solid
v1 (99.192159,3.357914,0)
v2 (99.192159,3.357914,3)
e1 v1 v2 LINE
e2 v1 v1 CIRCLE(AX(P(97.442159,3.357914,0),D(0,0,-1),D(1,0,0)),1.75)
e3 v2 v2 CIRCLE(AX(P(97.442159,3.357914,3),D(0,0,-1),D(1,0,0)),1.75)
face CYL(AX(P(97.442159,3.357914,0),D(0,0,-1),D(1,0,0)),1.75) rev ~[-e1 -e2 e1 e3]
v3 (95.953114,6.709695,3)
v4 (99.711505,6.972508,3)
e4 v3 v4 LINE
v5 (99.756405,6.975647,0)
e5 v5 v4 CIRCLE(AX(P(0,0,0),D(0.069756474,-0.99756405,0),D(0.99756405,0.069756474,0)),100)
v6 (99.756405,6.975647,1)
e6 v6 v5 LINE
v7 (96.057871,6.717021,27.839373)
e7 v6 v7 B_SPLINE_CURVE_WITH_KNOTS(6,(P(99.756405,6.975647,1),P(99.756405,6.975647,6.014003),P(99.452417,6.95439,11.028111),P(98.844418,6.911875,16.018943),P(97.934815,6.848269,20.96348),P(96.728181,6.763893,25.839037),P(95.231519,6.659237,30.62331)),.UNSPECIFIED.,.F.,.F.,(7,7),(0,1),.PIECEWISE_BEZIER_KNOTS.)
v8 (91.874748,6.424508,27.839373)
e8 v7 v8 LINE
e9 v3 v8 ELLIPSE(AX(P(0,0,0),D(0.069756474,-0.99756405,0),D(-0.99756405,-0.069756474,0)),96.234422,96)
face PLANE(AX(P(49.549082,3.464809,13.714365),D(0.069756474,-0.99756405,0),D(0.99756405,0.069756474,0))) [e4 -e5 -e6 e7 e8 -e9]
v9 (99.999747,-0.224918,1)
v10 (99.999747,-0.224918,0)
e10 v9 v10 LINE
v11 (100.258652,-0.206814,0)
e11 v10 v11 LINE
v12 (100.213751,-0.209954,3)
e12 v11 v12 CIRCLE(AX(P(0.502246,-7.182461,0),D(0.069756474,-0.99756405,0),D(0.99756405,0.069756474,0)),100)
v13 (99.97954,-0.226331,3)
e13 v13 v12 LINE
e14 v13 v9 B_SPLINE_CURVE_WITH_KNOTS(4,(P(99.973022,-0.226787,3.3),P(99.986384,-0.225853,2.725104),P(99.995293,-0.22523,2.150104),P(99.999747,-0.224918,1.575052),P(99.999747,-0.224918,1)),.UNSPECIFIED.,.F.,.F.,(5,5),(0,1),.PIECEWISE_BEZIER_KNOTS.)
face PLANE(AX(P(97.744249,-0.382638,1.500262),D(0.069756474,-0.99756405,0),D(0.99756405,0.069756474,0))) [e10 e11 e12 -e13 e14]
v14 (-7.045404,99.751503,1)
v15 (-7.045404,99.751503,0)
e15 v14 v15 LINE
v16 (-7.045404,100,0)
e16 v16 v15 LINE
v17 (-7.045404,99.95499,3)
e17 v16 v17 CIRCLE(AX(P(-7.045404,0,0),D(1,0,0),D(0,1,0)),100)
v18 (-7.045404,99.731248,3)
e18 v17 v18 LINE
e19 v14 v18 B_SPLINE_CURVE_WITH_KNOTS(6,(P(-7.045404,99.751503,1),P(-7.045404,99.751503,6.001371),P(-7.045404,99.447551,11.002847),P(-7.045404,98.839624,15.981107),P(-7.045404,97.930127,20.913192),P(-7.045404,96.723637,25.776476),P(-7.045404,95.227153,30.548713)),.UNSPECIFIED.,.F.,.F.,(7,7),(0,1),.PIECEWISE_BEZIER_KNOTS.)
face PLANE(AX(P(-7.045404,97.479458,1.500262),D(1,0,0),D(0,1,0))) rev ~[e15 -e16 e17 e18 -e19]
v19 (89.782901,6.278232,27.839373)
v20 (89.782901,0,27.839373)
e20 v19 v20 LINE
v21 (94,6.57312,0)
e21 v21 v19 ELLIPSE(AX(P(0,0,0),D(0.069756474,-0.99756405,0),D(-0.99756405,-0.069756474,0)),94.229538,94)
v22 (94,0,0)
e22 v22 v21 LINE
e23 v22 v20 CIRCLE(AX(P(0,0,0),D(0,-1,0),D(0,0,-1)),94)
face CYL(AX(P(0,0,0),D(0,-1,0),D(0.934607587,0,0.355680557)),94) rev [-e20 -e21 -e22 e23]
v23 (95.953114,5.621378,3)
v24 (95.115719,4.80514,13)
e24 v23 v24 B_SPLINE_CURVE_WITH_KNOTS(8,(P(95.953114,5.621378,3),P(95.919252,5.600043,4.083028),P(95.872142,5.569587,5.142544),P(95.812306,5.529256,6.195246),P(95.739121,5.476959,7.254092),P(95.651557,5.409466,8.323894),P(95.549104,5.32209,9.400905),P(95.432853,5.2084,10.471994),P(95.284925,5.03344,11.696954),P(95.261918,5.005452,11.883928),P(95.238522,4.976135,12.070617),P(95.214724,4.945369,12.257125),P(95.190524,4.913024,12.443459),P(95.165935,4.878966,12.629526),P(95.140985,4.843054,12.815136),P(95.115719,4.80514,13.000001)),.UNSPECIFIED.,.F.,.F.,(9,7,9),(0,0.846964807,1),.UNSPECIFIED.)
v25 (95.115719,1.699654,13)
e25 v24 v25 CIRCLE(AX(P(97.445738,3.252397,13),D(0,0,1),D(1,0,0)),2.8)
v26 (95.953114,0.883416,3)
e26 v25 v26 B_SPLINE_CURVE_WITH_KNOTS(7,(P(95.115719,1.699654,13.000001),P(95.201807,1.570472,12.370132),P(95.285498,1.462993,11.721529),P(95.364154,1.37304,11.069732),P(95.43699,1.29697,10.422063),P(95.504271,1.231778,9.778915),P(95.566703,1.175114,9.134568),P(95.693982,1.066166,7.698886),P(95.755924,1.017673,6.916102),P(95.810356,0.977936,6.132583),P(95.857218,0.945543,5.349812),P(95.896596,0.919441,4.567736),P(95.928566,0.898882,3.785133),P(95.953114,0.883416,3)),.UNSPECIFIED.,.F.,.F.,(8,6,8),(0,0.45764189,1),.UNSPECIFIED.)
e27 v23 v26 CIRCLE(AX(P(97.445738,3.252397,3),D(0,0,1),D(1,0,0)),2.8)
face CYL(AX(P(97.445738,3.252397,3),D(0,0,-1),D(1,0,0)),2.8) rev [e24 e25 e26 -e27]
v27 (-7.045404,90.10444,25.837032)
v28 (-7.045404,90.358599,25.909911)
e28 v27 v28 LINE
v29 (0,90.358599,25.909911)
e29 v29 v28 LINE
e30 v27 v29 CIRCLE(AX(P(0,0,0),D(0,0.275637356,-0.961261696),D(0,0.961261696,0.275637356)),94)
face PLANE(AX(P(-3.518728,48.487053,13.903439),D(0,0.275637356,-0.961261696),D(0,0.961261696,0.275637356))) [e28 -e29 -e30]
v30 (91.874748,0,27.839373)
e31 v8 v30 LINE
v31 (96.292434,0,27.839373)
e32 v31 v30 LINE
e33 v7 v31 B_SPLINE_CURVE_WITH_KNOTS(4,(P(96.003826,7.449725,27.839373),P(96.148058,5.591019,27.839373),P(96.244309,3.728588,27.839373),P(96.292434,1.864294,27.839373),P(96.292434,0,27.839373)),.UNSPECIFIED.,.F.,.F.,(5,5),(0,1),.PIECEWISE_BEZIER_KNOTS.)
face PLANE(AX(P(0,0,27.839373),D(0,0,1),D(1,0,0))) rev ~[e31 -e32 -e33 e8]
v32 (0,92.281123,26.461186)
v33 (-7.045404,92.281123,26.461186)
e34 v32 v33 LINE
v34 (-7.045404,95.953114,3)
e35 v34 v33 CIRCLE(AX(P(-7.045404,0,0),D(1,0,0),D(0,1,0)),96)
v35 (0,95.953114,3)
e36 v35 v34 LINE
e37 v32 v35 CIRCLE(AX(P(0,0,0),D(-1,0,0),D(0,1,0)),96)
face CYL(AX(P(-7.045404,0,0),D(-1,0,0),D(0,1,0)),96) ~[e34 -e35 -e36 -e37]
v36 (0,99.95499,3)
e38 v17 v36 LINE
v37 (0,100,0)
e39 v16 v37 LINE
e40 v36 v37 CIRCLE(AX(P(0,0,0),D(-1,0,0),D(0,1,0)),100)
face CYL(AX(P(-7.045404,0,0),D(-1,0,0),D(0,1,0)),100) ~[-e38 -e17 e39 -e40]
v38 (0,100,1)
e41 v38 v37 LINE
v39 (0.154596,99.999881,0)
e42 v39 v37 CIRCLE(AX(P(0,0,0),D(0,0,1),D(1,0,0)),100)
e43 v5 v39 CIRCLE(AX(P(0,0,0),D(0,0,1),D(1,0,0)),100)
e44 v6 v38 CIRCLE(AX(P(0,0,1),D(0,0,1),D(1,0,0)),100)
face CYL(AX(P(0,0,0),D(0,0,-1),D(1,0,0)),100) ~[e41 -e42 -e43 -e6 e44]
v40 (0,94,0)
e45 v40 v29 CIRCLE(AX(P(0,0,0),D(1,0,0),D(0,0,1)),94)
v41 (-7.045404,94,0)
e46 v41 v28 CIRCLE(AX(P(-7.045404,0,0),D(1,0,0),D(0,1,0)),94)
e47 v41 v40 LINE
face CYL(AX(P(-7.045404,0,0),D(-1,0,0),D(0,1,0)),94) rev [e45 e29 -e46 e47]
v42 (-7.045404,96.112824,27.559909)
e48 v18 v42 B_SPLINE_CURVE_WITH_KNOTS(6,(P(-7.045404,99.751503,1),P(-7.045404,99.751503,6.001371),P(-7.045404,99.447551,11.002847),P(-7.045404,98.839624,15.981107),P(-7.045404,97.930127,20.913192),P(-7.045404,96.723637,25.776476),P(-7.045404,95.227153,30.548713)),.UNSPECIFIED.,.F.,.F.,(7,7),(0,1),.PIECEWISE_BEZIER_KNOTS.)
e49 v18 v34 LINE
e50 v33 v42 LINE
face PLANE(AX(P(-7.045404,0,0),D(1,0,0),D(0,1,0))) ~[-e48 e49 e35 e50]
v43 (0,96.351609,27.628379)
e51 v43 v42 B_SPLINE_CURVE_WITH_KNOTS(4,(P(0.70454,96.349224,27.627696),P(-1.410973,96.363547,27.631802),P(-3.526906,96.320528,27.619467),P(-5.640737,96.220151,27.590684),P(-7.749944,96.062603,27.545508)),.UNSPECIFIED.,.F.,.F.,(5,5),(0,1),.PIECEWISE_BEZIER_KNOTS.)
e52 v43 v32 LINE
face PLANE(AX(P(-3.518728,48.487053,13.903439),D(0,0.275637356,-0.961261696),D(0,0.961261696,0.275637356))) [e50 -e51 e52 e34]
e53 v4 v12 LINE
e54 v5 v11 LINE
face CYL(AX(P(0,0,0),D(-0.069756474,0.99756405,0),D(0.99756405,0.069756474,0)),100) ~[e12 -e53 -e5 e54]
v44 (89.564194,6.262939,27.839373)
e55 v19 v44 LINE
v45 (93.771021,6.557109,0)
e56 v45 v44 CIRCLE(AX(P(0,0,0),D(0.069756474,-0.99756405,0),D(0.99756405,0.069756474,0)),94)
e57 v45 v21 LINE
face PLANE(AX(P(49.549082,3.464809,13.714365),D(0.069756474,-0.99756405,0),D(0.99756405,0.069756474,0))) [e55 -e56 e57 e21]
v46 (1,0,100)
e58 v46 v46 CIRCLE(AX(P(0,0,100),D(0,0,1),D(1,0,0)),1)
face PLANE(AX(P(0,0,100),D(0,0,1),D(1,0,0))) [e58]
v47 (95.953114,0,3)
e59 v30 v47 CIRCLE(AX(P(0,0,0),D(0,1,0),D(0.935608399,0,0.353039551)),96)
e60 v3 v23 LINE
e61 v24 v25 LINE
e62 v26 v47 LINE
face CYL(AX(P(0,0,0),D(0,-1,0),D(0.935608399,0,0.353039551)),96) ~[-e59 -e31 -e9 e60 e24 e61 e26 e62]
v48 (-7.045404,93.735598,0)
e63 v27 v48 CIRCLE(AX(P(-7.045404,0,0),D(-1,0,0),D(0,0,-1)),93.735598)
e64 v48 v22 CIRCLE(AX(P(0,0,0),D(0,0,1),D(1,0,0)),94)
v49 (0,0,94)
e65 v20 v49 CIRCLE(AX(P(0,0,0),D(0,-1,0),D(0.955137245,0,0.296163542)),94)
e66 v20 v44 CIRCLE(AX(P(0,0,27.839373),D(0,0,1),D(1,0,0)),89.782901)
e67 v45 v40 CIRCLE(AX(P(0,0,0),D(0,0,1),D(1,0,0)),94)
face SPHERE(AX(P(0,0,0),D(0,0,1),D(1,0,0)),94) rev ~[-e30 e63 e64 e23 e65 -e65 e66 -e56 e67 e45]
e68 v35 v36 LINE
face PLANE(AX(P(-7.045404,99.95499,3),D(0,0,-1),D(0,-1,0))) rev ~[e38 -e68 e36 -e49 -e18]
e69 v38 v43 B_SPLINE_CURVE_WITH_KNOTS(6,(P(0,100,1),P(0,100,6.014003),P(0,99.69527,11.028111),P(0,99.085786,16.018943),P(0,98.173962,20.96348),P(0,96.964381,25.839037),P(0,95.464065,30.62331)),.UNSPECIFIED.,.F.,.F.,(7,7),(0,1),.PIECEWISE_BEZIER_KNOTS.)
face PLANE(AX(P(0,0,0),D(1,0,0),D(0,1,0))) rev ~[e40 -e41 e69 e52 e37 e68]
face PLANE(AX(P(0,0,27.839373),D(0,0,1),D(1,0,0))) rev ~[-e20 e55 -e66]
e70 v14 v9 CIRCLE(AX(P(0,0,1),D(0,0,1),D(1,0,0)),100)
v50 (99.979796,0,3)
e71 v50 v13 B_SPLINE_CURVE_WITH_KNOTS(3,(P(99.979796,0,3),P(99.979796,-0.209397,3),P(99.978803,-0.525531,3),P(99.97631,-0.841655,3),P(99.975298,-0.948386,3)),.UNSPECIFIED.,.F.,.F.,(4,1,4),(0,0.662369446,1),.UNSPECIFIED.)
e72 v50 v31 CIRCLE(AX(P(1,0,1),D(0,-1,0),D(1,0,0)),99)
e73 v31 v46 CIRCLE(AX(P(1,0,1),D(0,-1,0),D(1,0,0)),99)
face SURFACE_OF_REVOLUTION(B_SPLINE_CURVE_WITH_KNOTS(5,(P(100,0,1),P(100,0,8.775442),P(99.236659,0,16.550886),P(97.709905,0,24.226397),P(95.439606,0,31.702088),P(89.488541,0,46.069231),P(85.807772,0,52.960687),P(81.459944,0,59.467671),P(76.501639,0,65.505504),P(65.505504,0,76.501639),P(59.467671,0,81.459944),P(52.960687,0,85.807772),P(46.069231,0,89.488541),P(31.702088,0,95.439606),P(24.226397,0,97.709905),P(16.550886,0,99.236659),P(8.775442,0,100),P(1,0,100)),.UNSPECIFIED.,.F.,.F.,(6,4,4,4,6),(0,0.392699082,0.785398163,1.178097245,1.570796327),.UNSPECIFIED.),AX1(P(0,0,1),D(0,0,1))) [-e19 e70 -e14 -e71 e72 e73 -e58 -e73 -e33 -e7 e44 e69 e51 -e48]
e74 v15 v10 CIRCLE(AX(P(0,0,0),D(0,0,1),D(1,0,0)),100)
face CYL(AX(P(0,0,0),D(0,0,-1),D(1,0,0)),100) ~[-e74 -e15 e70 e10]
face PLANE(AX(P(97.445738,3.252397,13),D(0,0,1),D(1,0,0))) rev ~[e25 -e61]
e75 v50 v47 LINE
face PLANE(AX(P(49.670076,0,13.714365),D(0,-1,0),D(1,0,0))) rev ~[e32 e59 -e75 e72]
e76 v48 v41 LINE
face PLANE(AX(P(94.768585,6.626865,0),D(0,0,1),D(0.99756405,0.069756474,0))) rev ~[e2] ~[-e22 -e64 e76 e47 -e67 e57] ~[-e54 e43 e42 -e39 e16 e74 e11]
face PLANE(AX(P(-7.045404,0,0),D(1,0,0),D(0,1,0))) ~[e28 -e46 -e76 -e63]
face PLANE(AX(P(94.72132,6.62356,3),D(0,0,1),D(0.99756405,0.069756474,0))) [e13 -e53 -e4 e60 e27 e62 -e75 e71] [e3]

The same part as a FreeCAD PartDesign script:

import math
import FreeCAD as App
import Part
import Sketcher

V = App.Vector


def edges_at(feature, points):
    """Names of the edges that pass closest to the given points."""
    edges = feature.Shape.Edges
    near = lambda p: min(range(len(edges)), key=lambda i: edges[i].distToShape(Part.Vertex(*p))[0])
    return sorted({f"Edge{near(p) + 1}" for p in points})

doc = App.newDocument("Part")
body = doc.addObject("PartDesign::Body", "Body")

# Sketch on XY plane
sketch1 = doc.addObject("Sketcher::SketchObject", "Sketch")
body.addObject(sketch1)
sketch1.AttachmentSupport = (doc.XY_Plane, [""])
sketch1.MapMode = "FlatFace"
sketch1.addGeometry(Part.Circle(V(0, 0, 0), V(0, 0, 1), 100), False)
sketch1.addConstraint(Sketcher.Constraint("Coincident", 0, 3, -1, 1))
sketch1.addConstraint(Sketcher.Constraint("Diameter", 0, 200.0))
pad1 = doc.addObject("PartDesign::Pad", "Pad")
body.addObject(pad1)
pad1.Profile = sketch1
pad1.Length = 100
doc.recompute()

fillet = doc.addObject("PartDesign::Fillet", "Fillet")
body.addObject(fillet)
fillet.Base = (pad1, edges_at(pad1, [(-100, 0, 100)]))
fillet.Radius = 99

# Sketch on XZ plane
sketch2 = doc.addObject("Sketcher::SketchObject", "Sketch001")
body.addObject(sketch2)
sketch2.AttachmentSupport = (doc.XZ_Plane, [""])
sketch2.MapMode = "FlatFace"
sketch2.addGeometry(Part.ArcOfCircle(Part.Circle(V(0, 0, 0), V(0, 0, 1), 101), math.radians(0), math.radians(16)), False)
sketch2.addGeometry(Part.LineSegment(V(97.087431, 27.839373, 0), V(0, 27.839373, 0)), False)
sketch2.addGeometry(Part.LineSegment(V(0, 27.839373, 0), V(0, 0, 0)), False)
sketch2.addGeometry(Part.LineSegment(V(0, 0, 0), V(101, 0, 0)), False)
sketch2.addConstraint(Sketcher.Constraint("Coincident", 0, 2, 1, 1))
sketch2.addConstraint(Sketcher.Constraint("Coincident", 1, 2, 2, 1))
sketch2.addConstraint(Sketcher.Constraint("Coincident", 2, 2, 3, 1))
sketch2.addConstraint(Sketcher.Constraint("Coincident", 3, 2, 0, 1))
sketch2.addConstraint(Sketcher.Constraint("Horizontal", 1))
sketch2.addConstraint(Sketcher.Constraint("Vertical", 2))
sketch2.addConstraint(Sketcher.Constraint("Horizontal", 3))
sketch2.addConstraint(Sketcher.Constraint("Coincident", 0, 3, -1, 1))
sketch2.addConstraint(Sketcher.Constraint("Coincident", 2, 2, -1, 1))
sketch2.addConstraint(Sketcher.Constraint("Radius", 0, 101.0))
sketch2.addConstraint(Sketcher.Constraint("DistanceX", 1, 2, 1, 1, 97.087431))
groove = doc.addObject("PartDesign::Groove", "Groove")
body.addObject(groove)
groove.Profile = sketch2
groove.ReferenceAxis = (sketch2, ["V_Axis"])
groove.Angle = 4

# Sketch on XY plane
sketch3 = doc.addObject("Sketcher::SketchObject", "Sketch002")
body.addObject(sketch3)
sketch3.AttachmentSupport = (doc.XY_Plane, [""])
sketch3.MapMode = "FlatFace"
sketch3.addGeometry(Part.ArcOfCircle(Part.Circle(V(0, 0, 0), V(0, 0, 1), 101), math.radians(90), math.radians(94)), False)
sketch3.addGeometry(Part.LineSegment(V(0, 101, 0), V(0, 0, 0)), False)
sketch3.addGeometry(Part.LineSegment(V(0, 0, 0), V(-7.045404, 0, 0)), False)
sketch3.addGeometry(Part.LineSegment(V(-7.045404, 0, 0), V(-7.045404, 100.753969, 0)), False)
sketch3.addConstraint(Sketcher.Constraint("Coincident", 0, 1, 1, 1))
sketch3.addConstraint(Sketcher.Constraint("Coincident", 1, 2, 2, 1))
sketch3.addConstraint(Sketcher.Constraint("Coincident", 2, 2, 3, 1))
sketch3.addConstraint(Sketcher.Constraint("Coincident", 3, 2, 0, 2))
sketch3.addConstraint(Sketcher.Constraint("Vertical", 1))
sketch3.addConstraint(Sketcher.Constraint("Horizontal", 2))
sketch3.addConstraint(Sketcher.Constraint("Vertical", 3))
sketch3.addConstraint(Sketcher.Constraint("Coincident", 0, 3, -1, 1))
sketch3.addConstraint(Sketcher.Constraint("Coincident", 1, 2, -1, 1))
sketch3.addConstraint(Sketcher.Constraint("Radius", 0, 101.0))
sketch3.addConstraint(Sketcher.Constraint("DistanceY", 3, 1, 3, 2, 100.753969))
groove2 = doc.addObject("PartDesign::Groove", "Groove001")
body.addObject(groove2)
groove2.Profile = sketch3
groove2.ReferenceAxis = (sketch3, ["H_Axis"])
groove2.Angle = 16

# Sketch on XZ plane
sketch4 = doc.addObject("Sketcher::SketchObject", "Sketch003")
body.addObject(sketch4)
sketch4.AttachmentSupport = (doc.XZ_Plane, [""])
sketch4.MapMode = "FlatFace"
sketch4.addGeometry(Part.ArcOfCircle(Part.Circle(V(0, 0, 0), V(0, 0, 1), 94), math.radians(-90), math.radians(90)), False)
sketch4.addGeometry(Part.LineSegment(V(0, 94, 0), V(0, -94, 0)), False)
sketch4.addConstraint(Sketcher.Constraint("Coincident", 0, 1, 1, 2))
sketch4.addConstraint(Sketcher.Constraint("Coincident", 1, 1, 0, 2))
sketch4.addConstraint(Sketcher.Constraint("Vertical", 1))
sketch4.addConstraint(Sketcher.Constraint("Coincident", 0, 3, -1, 1))
sketch4.addConstraint(Sketcher.Constraint("PointOnObject", 0, 1, -2))
sketch4.addConstraint(Sketcher.Constraint("Radius", 0, 94.0))
groove3 = doc.addObject("PartDesign::Groove", "Groove002")
body.addObject(groove3)
groove3.Profile = sketch4
groove3.ReferenceAxis = (sketch4, ["V_Axis"])
groove3.Angle = 360

# Sketch on YZ plane
sketch5 = doc.addObject("Sketcher::SketchObject", "Sketch004")
body.addObject(sketch5)
sketch5.AttachmentSupport = (doc.YZ_Plane, [""])
sketch5.MapMode = "FlatFace"
sketch5.AttachmentOffset = App.Placement(V(0, 0, -7.045404), App.Rotation())
sketch5.addGeometry(Part.ArcOfCircle(Part.Circle(V(0, 0, 0), V(0, 0, 1), 96), math.radians(0), math.radians(20.107378)), False)
sketch5.addGeometry(Part.LineSegment(V(90.148799, 33.00294, 0), V(88.193551, 32.525338, 0)), False)
sketch5.addGeometry(Part.ArcOfCircle(Part.Circle(V(0, 0, 0), V(0, 0, 1), 94), math.radians(0), math.radians(20.24372)), False)
sketch5.addGeometry(Part.LineSegment(V(94, 0, 0), V(96, 0, 0)), False)
sketch5.addConstraint(Sketcher.Constraint("Coincident", 0, 2, 1, 1))
sketch5.addConstraint(Sketcher.Constraint("Coincident", 1, 2, 2, 2))
sketch5.addConstraint(Sketcher.Constraint("Coincident", 2, 1, 3, 1))
sketch5.addConstraint(Sketcher.Constraint("Coincident", 3, 2, 0, 1))
sketch5.addConstraint(Sketcher.Constraint("Horizontal", 3))
sketch5.addConstraint(Sketcher.Constraint("Coincident", 0, 3, -1, 1))
sketch5.addConstraint(Sketcher.Constraint("Coincident", 2, 3, -1, 1))
sketch5.addConstraint(Sketcher.Constraint("PointOnObject", 2, 1, -1))
sketch5.addConstraint(Sketcher.Constraint("Radius", 0, 96.0))
sketch5.addConstraint(Sketcher.Constraint("Radius", 2, 94.0))
sketch5.addConstraint(Sketcher.Constraint("DistanceX", -1, 1, 0, 2, 90.148799))
sketch5.addConstraint(Sketcher.Constraint("DistanceX", -1, 1, 1, 2, 88.193551))
pad2 = doc.addObject("PartDesign::Pad", "Pad001")
body.addObject(pad2)
pad2.Profile = sketch5
pad2.Length = 10

# Sketch on XZ plane
sketch6 = doc.addObject("Sketcher::SketchObject", "Sketch005")
body.addObject(sketch6)
sketch6.AttachmentSupport = (doc.XZ_Plane, [""])
sketch6.MapMode = "FlatFace"
sketch6.addGeometry(Part.ArcOfCircle(Part.Circle(V(0, 0, 0), V(0, 0, 1), 96), math.radians(0), math.radians(20.673341)), False)
sketch6.addGeometry(Part.LineSegment(V(96, 0, 0), V(94, 0, 0)), False)
sketch6.addGeometry(Part.ArcOfCircle(Part.Circle(V(0, 0, 0), V(0, 0, 1), 94), math.radians(0), math.radians(20.83516)), False)
sketch6.addGeometry(Part.LineSegment(V(87.853113, 33.433972, 0), V(89.818406, 33.891797, 0)), False)
sketch6.addConstraint(Sketcher.Constraint("Coincident", 0, 1, 1, 1))
sketch6.addConstraint(Sketcher.Constraint("Coincident", 1, 2, 2, 1))
sketch6.addConstraint(Sketcher.Constraint("Coincident", 2, 2, 3, 1))
sketch6.addConstraint(Sketcher.Constraint("Coincident", 3, 2, 0, 2))
sketch6.addConstraint(Sketcher.Constraint("Horizontal", 1))
sketch6.addConstraint(Sketcher.Constraint("Coincident", 0, 3, -1, 1))
sketch6.addConstraint(Sketcher.Constraint("Coincident", 2, 3, -1, 1))
sketch6.addConstraint(Sketcher.Constraint("PointOnObject", 0, 1, -1))
sketch6.addConstraint(Sketcher.Constraint("Radius", 0, 96.0))
sketch6.addConstraint(Sketcher.Constraint("Radius", 2, 94.0))
sketch6.addConstraint(Sketcher.Constraint("Distance", 3, 2.017915))
sketch6.addConstraint(Sketcher.Constraint("DistanceX", -1, 1, 2, 2, 87.853113))
pad3 = doc.addObject("PartDesign::Pad", "Pad002")
body.addObject(pad3)
pad3.Profile = sketch6
pad3.Length = 10
pad3.Reversed = True

# Sketch on YZ plane
sketch7 = doc.addObject("Sketcher::SketchObject", "Sketch006")
body.addObject(sketch7)
sketch7.AttachmentSupport = (doc.YZ_Plane, [""])
sketch7.MapMode = "FlatFace"
sketch7.AttachmentOffset = App.Placement(V(0, 0, -7.045404), App.Rotation())
sketch7.addGeometry(Part.LineSegment(V(99.95499, 3, 0), V(94.95262, 3, 0)), False)
sketch7.addGeometry(Part.ArcOfCircle(Part.Circle(V(0, 0, 0), V(0, 0, 1), 95), math.radians(0), math.radians(1.809641)), False)
sketch7.addGeometry(Part.LineSegment(V(95, 0, 0), V(100, 0, 0)), False)
sketch7.addGeometry(Part.ArcOfCircle(Part.Circle(V(0, 0, 0), V(0, 0, 1), 100), math.radians(0), math.radians(1.719131)), False)
sketch7.addConstraint(Sketcher.Constraint("Coincident", 0, 2, 1, 2))
sketch7.addConstraint(Sketcher.Constraint("Coincident", 1, 1, 2, 1))
sketch7.addConstraint(Sketcher.Constraint("Coincident", 2, 2, 3, 1))
sketch7.addConstraint(Sketcher.Constraint("Coincident", 3, 2, 0, 1))
sketch7.addConstraint(Sketcher.Constraint("Horizontal", 0))
sketch7.addConstraint(Sketcher.Constraint("Horizontal", 2))
sketch7.addConstraint(Sketcher.Constraint("Coincident", 1, 3, -1, 1))
sketch7.addConstraint(Sketcher.Constraint("Coincident", 3, 3, -1, 1))
sketch7.addConstraint(Sketcher.Constraint("PointOnObject", 1, 1, -1))
sketch7.addConstraint(Sketcher.Constraint("Radius", 1, 95.0))
sketch7.addConstraint(Sketcher.Constraint("Radius", 3, 100.0))
sketch7.addConstraint(Sketcher.Constraint("DistanceY", -1, 1, 0, 2, 3.0))
pad4 = doc.addObject("PartDesign::Pad", "Pad003")
body.addObject(pad4)
pad4.Profile = sketch7
pad4.Length = 7.2

# Sketch on an angled plane
sketch8 = doc.addObject("Sketcher::SketchObject", "Sketch007")
body.addObject(sketch8)
sketch8.Placement = App.Placement(V(0, 0, 0), App.Rotation(V(0.99756405, 0.069756474, 0), V(0, 0, 1), V(0.069756474, -0.99756405, 0), "ZXY"))
sketch8.addGeometry(Part.ArcOfCircle(Part.Circle(V(0, 0, 0), V(0, 0, 1), 100), math.radians(0), math.radians(1.719131)), False)
sketch8.addGeometry(Part.LineSegment(V(99.95499, 3, 0), V(94.95262, 3, 0)), False)
sketch8.addGeometry(Part.ArcOfCircle(Part.Circle(V(0, 0, 0), V(0, 0, 1), 95), math.radians(0), math.radians(1.809641)), False)
sketch8.addGeometry(Part.LineSegment(V(95, 0, 0), V(100, 0, 0)), False)
sketch8.addConstraint(Sketcher.Constraint("Coincident", 0, 2, 1, 1))
sketch8.addConstraint(Sketcher.Constraint("Coincident", 1, 2, 2, 2))
sketch8.addConstraint(Sketcher.Constraint("Coincident", 2, 1, 3, 1))
sketch8.addConstraint(Sketcher.Constraint("Coincident", 3, 2, 0, 1))
sketch8.addConstraint(Sketcher.Constraint("Horizontal", 1))
sketch8.addConstraint(Sketcher.Constraint("Horizontal", 3))
sketch8.addConstraint(Sketcher.Constraint("Coincident", 0, 3, -1, 1))
sketch8.addConstraint(Sketcher.Constraint("Coincident", 2, 3, -1, 1))
sketch8.addConstraint(Sketcher.Constraint("PointOnObject", 2, 1, -1))
sketch8.addConstraint(Sketcher.Constraint("Radius", 0, 100.0))
sketch8.addConstraint(Sketcher.Constraint("Radius", 2, 95.0))
sketch8.addConstraint(Sketcher.Constraint("DistanceY", -1, 1, 0, 2, 3.0))
pad5 = doc.addObject("PartDesign::Pad", "Pad004")
body.addObject(pad5)
pad5.Profile = sketch8
pad5.Length = 7.2

# Sketch on XY plane
sketch9 = doc.addObject("Sketcher::SketchObject", "Sketch008")
body.addObject(sketch9)
sketch9.AttachmentSupport = (doc.XY_Plane, [""])
sketch9.MapMode = "FlatFace"
sketch9.addGeometry(Part.Circle(V(97.442159, 3.357914, 0), V(0, 0, 1), 1.75), False)
sketch9.addConstraint(Sketcher.Constraint("Diameter", 0, 3.5))
sketch9.addConstraint(Sketcher.Constraint("DistanceX", -1, 1, 0, 3, 97.442159))
sketch9.addConstraint(Sketcher.Constraint("DistanceY", -1, 1, 0, 3, 3.357914))
pocket1 = doc.addObject("PartDesign::Pocket", "Pocket")
body.addObject(pocket1)
pocket1.Profile = sketch9
pocket1.Length = 3
pocket1.Reversed = True

# Sketch on XY plane
sketch10 = doc.addObject("Sketcher::SketchObject", "Sketch009")
body.addObject(sketch10)
sketch10.AttachmentSupport = (doc.XY_Plane, [""])
sketch10.MapMode = "FlatFace"
sketch10.AttachmentOffset = App.Placement(V(0, 0, 3), App.Rotation())
sketch10.addGeometry(Part.Circle(V(97.445738, 3.252397, 0), V(0, 0, 1), 2.8), False)
sketch10.addConstraint(Sketcher.Constraint("Diameter", 0, 5.6))
sketch10.addConstraint(Sketcher.Constraint("DistanceX", -1, 1, 0, 3, 97.445738))
sketch10.addConstraint(Sketcher.Constraint("DistanceY", -1, 1, 0, 3, 3.252397))
pocket2 = doc.addObject("PartDesign::Pocket", "Pocket001")
body.addObject(pocket2)
pocket2.Profile = sketch10
pocket2.Length = 10
pocket2.Reversed = True

doc.recompute()
